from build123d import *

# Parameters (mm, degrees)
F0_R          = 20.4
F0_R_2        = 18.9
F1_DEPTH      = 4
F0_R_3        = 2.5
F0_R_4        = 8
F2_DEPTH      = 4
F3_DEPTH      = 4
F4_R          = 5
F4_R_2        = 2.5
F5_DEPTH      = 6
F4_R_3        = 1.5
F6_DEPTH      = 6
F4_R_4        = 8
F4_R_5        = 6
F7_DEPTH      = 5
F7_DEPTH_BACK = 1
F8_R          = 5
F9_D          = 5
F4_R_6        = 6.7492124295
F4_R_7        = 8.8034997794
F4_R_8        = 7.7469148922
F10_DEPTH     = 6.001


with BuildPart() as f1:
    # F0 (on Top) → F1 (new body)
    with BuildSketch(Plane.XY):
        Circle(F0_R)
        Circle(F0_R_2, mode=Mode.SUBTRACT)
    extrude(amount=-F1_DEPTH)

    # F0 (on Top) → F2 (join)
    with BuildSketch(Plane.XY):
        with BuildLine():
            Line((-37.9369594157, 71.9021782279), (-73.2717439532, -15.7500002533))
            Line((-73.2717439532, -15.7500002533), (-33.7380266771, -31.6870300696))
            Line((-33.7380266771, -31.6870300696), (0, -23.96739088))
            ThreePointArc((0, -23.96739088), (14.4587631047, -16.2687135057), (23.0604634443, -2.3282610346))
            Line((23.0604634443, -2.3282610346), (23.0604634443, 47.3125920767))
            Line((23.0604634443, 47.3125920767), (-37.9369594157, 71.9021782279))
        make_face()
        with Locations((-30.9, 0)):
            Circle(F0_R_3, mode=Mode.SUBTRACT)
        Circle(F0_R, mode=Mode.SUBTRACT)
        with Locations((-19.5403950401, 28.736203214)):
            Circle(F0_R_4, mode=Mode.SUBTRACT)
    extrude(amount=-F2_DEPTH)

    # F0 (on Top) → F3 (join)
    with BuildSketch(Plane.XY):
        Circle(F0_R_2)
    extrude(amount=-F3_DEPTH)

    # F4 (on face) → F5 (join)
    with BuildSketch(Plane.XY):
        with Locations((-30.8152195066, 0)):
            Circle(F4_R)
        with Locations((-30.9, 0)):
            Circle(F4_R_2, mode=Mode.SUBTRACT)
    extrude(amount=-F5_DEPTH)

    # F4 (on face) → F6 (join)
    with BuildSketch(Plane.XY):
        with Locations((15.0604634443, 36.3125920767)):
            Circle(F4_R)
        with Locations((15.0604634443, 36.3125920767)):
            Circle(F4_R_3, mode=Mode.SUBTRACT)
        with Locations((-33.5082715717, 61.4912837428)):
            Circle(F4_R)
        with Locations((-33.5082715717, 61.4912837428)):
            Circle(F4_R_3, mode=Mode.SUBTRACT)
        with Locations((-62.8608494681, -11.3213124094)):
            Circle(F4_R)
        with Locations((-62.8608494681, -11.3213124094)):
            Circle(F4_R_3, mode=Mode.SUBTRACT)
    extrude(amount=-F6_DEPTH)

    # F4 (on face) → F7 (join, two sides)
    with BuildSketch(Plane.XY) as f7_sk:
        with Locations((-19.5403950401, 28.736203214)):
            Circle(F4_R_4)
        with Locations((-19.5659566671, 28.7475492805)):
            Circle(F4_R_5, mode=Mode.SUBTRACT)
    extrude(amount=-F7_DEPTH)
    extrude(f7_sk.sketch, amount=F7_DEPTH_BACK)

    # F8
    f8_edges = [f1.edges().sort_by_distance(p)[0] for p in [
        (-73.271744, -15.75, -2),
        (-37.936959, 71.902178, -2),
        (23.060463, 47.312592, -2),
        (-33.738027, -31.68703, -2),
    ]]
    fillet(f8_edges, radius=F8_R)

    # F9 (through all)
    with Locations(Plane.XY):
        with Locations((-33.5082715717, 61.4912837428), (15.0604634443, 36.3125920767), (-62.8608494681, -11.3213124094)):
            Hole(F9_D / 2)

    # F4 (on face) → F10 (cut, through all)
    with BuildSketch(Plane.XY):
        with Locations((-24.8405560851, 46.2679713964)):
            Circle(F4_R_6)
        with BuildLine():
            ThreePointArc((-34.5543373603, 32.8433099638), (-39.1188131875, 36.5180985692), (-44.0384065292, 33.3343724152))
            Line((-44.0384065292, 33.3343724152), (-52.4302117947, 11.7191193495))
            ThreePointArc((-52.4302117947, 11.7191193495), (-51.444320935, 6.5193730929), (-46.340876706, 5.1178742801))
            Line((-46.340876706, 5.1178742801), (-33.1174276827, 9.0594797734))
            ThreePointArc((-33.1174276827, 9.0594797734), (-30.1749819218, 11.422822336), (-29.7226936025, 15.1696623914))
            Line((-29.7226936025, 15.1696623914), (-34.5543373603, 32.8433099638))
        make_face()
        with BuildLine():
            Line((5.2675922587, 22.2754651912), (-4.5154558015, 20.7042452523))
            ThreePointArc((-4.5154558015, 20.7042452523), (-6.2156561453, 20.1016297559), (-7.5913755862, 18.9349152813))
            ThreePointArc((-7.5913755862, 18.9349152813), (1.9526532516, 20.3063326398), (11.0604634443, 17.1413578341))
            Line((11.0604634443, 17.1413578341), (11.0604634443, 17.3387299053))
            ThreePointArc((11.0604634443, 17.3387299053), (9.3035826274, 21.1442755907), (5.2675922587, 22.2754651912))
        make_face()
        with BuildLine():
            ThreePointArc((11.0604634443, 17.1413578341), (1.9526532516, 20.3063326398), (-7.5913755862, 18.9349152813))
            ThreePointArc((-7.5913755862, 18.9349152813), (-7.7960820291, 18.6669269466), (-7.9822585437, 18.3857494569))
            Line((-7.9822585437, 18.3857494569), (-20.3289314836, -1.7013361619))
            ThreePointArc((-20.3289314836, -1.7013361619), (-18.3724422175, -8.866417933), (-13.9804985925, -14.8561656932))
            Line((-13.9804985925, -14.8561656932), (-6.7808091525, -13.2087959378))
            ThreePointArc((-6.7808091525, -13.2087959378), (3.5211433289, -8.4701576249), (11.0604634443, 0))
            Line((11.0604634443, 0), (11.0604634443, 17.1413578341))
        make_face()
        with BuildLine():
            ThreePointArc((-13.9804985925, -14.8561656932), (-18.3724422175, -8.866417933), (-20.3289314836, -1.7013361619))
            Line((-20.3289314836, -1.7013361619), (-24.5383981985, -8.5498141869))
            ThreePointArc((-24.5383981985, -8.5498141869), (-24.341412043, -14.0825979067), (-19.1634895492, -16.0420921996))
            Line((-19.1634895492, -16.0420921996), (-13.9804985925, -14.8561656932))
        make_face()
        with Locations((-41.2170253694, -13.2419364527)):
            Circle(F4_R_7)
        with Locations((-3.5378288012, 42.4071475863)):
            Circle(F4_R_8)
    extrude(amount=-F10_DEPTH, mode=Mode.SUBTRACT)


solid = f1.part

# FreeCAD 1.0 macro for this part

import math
import FreeCAD as App
import Part
import Sketcher
from FreeCAD import Vector
Q = App.Units.Quantity


def edges_at(feature, points):
    """Names of the edges that pass closest to the given points."""
    edges = feature.Shape.Edges
    near = lambda p: min(range(len(edges)), key=lambda i: edges[i].distToShape(Part.Vertex(*p))[0])
    return sorted({f"Edge{near(p) + 1}" for p in points})

doc = App.newDocument("Part")
body = doc.addObject("PartDesign::Body", "Body")

sketch1 = doc.addObject("Sketcher::SketchObject", "Sketch")
body.addObject(sketch1)
sketch1.AttachmentSupport = (doc.XY_Plane, [""])
sketch1.MapMode = "FlatFace"
sketch1.addGeometry([
    Part.Circle(Vector(0, 0, 0), Vector(0, 0, 1), 20.4),
    Part.Circle(Vector(0, 0, 0), Vector(0, 0, 1), 18.9),
], False)
sketch1.addConstraint([
    Sketcher.Constraint("Coincident", 0, 3, -1, 1),
    Sketcher.Constraint("Coincident", 1, 3, -1, 1),
    Sketcher.Constraint("Diameter", 0, Q("40.8 mm")),
    Sketcher.Constraint("Diameter", 1, Q("37.8 mm")),
])
pad1 = doc.addObject("PartDesign::Pad", "Pad")
body.addObject(pad1)
pad1.Profile = sketch1
pad1.Length = 4
pad1.Reversed = True

sketch2 = doc.addObject("Sketcher::SketchObject", "Sketch001")
body.addObject(sketch2)
sketch2.AttachmentSupport = (doc.XY_Plane, [""])
sketch2.MapMode = "FlatFace"
sketch2.addGeometry([
    Part.LineSegment(Vector(-37.936959, 71.902178, 0), Vector(-73.271744, -15.75, 0)),
    Part.LineSegment(Vector(-73.271744, -15.75, 0), Vector(-33.738027, -31.68703, 0)),
    Part.LineSegment(Vector(-33.738027, -31.68703, 0), Vector(0, -23.967391, 0)),
    Part.ArcOfCircle(Part.Circle(Vector(-6.992139, 6.591159, 0), Vector(0, 0, 1), 31.348285), math.radians(-77.111942), math.radians(-16.530551)),
    Part.LineSegment(Vector(23.060463, -2.328261, 0), Vector(23.060463, 47.312592, 0)),
    Part.LineSegment(Vector(23.060463, 47.312592, 0), Vector(-37.936959, 71.902178, 0)),
    Part.Circle(Vector(-30.9, 0, 0), Vector(0, 0, 1), 2.5),
    Part.Circle(Vector(0, 0, 0), Vector(0, 0, 1), 20.4),
    Part.Circle(Vector(-19.540395, 28.736203, 0), Vector(0, 0, 1), 8),
], False)
sketch2.addConstraint([
    Sketcher.Constraint("Coincident", 0, 2, 1, 1),
    Sketcher.Constraint("Coincident", 1, 2, 2, 1),
    Sketcher.Constraint("Tangent", 2, 2, 3, 1),
    Sketcher.Constraint("Coincident", 3, 2, 4, 1),
    Sketcher.Constraint("Coincident", 4, 2, 5, 1),
    Sketcher.Constraint("Coincident", 5, 2, 0, 1),
    Sketcher.Constraint("Vertical", 4),
    Sketcher.Constraint("Coincident", 7, 3, -1, 1),
    Sketcher.Constraint("PointOnObject", 6, 3, -1),
    Sketcher.Constraint("PointOnObject", 2, 2, -2),
    Sketcher.Constraint("Perpendicular", 0, 1),
    Sketcher.Constraint("Parallel", 1, 5),
    Sketcher.Constraint("Diameter", 6, Q("5 mm")),
    Sketcher.Constraint("Diameter", 8, Q("16 mm")),
    Sketcher.Constraint("Diameter", 7, Q("40.8 mm")),
    Sketcher.Constraint("DistanceX", 6, 3, -1, 1, Q("30.9 mm")),
    Sketcher.Constraint("DistanceY", 0, 2, -1, 1, Q("15.75 mm")),
    Sketcher.Constraint("Radius", 3, Q("31.348285 mm")),
    Sketcher.Constraint("Distance", 2, Q("34.60993 mm")),
    Sketcher.Constraint("DistanceY", 4, 1, 4, 2, Q("49.640853 mm")),
    Sketcher.Constraint("DistanceX", 3, 3, -1, 1, Q("6.992139 mm")),
    Sketcher.Constraint("DistanceY", -1, 1, 3, 3, Q("6.591159 mm")),
    Sketcher.Constraint("DistanceY", 3, 2, -1, 1, Q("2.328261 mm")),
    Sketcher.Constraint("DistanceX", 5, 2, -1, 1, Q("37.936959 mm")),
    Sketcher.Constraint("DistanceX", 0, 2, 8, 3, Q("53.731349 mm")),
    Sketcher.Constraint("DistanceY", 8, 3, 4, 2, Q("18.576389 mm")),
])
pad2 = doc.addObject("PartDesign::Pad", "Pad001")
body.addObject(pad2)
pad2.Profile = sketch2
pad2.Length = 4
pad2.Reversed = True

sketch3 = doc.addObject("Sketcher::SketchObject", "Sketch002")
body.addObject(sketch3)
sketch3.AttachmentSupport = (doc.XY_Plane, [""])
sketch3.MapMode = "FlatFace"
sketch3.addGeometry(Part.Circle(Vector(0, 0, 0), Vector(0, 0, 1), 18.9), False)
sketch3.addConstraint([
    Sketcher.Constraint("Coincident", 0, 3, -1, 1),
    Sketcher.Constraint("Diameter", 0, Q("37.8 mm")),
])
pad3 = doc.addObject("PartDesign::Pad", "Pad002")
body.addObject(pad3)
pad3.Profile = sketch3
pad3.Length = 4
pad3.Reversed = True

sketch4 = doc.addObject("Sketcher::SketchObject", "Sketch003")
body.addObject(sketch4)
sketch4.AttachmentSupport = (doc.XY_Plane, [""])
sketch4.MapMode = "FlatFace"
sketch4.addGeometry([
    Part.Circle(Vector(-30.81522, 0, 0), Vector(0, 0, 1), 5),
    Part.Circle(Vector(-30.9, 0, 0), Vector(0, 0, 1), 2.5),
], False)
sketch4.addConstraint([
    Sketcher.Constraint("PointOnObject", 0, 3, -1),
    Sketcher.Constraint("PointOnObject", 1, 3, -1),
    Sketcher.Constraint("Diameter", 0, Q("10 mm")),
    Sketcher.Constraint("Diameter", 1, Q("5 mm")),
    Sketcher.Constraint("DistanceX", 1, 3, -1, 1, Q("30.9 mm")),
    Sketcher.Constraint("DistanceX", 0, 3, -1, 1, Q("30.81522 mm")),
])
pad4 = doc.addObject("PartDesign::Pad", "Pad003")
body.addObject(pad4)
pad4.Profile = sketch4
pad4.Length = 6
pad4.Reversed = True

sketch5 = doc.addObject("Sketcher::SketchObject", "Sketch004")
body.addObject(sketch5)
sketch5.AttachmentSupport = (doc.XY_Plane, [""])
sketch5.MapMode = "FlatFace"
sketch5.addGeometry([
    Part.Circle(Vector(15.060463, 36.312592, 0), Vector(0, 0, 1), 5),
    Part.Circle(Vector(15.060463, 36.312592, 0), Vector(0, 0, 1), 1.5),
    Part.Circle(Vector(-33.508272, 61.491284, 0), Vector(0, 0, 1), 5),
    Part.Circle(Vector(-33.508272, 61.491284, 0), Vector(0, 0, 1), 1.5),
    Part.Circle(Vector(-62.860849, -11.321312, 0), Vector(0, 0, 1), 5),
    Part.Circle(Vector(-62.860849, -11.321312, 0), Vector(0, 0, 1), 1.5),
], False)
sketch5.addConstraint([
    Sketcher.Constraint("Coincident", 1, 3, 0, 3),
    Sketcher.Constraint("Coincident", 3, 3, 2, 3),
    Sketcher.Constraint("Coincident", 5, 3, 4, 3),
    Sketcher.Constraint("Equal", 0, 2),
    Sketcher.Constraint("Equal", 1, 3),
    Sketcher.Constraint("Equal", 2, 4),
    Sketcher.Constraint("Equal", 3, 5),
    Sketcher.Constraint("Diameter", 0, Q("10 mm")),
    Sketcher.Constraint("Diameter", 1, Q("3 mm")),
    Sketcher.Constraint("DistanceX", 2, 3, -1, 1, Q("33.508272 mm")),
    Sketcher.Constraint("DistanceX", 4, 3, -1, 1, Q("62.860849 mm")),
    Sketcher.Constraint("DistanceY", 0, 3, 2, 3, Q("25.178692 mm")),
    Sketcher.Constraint("DistanceX", -1, 1, 0, 3, Q("15.060463 mm")),
    Sketcher.Constraint("DistanceY", -1, 1, 0, 3, Q("36.312592 mm")),
    Sketcher.Constraint("DistanceY", 4, 3, -1, 1, Q("11.321312 mm")),
])
pad5 = doc.addObject("PartDesign::Pad", "Pad004")
body.addObject(pad5)
pad5.Profile = sketch5
pad5.Length = 6
pad5.Reversed = True

sketch6 = doc.addObject("Sketcher::SketchObject", "Sketch005")
body.addObject(sketch6)
sketch6.AttachmentSupport = (doc.XY_Plane, [""])
sketch6.MapMode = "FlatFace"
sketch6.addGeometry([
    Part.Circle(Vector(-19.540395, 28.736203, 0), Vector(0, 0, 1), 8),
    Part.Circle(Vector(-19.565957, 28.747549, 0), Vector(0, 0, 1), 6),
], False)
sketch6.addConstraint([
    Sketcher.Constraint("Diameter", 0, Q("16 mm")),
    Sketcher.Constraint("Diameter", 1, Q("12 mm")),
    Sketcher.Constraint("DistanceY", -1, 1, 1, 3, Q("28.747549 mm")),
    Sketcher.Constraint("DistanceX", 1, 3, 0, 3, Q("0.025562 mm")),
    Sketcher.Constraint("DistanceX", 0, 3, -1, 1, Q("19.540395 mm")),
    Sketcher.Constraint("DistanceY", -1, 1, 0, 3, Q("28.736203 mm")),
])
pad6 = doc.addObject("PartDesign::Pad", "Pad005")
body.addObject(pad6)
pad6.Profile = sketch6
pad6.Type = "TwoLengths"
pad6.Length = 5
pad6.Length2 = 1
pad6.Reversed = True
doc.recompute()

fillet = doc.addObject("PartDesign::Fillet", "Fillet")
body.addObject(fillet)
fillet.Base = (pad6, edges_at(pad6, [
    (-73.272, -15.75, -2),
    (-37.937, 71.902, -2),
    (23.06, 47.313, -2),
    (-33.738, -31.687, -2),
]))
fillet.Radius = 5

sketch7 = doc.addObject("Sketcher::SketchObject", "Sketch006")
body.addObject(sketch7)
sketch7.AttachmentSupport = (doc.XY_Plane, [""])
sketch7.MapMode = "FlatFace"
sketch7.addGeometry([
    Part.Circle(Vector(-33.508272, 61.491284, 0), Vector(0, 0, 1), 2.5),
    Part.Circle(Vector(15.060463, 36.312592, 0), Vector(0, 0, 1), 2.5),
    Part.Circle(Vector(-62.860849, -11.321312, 0), Vector(0, 0, 1), 2.5),
], False)
sketch7.addConstraint([
    Sketcher.Constraint("Equal", 0, 1),
    Sketcher.Constraint("Equal", 1, 2),
    Sketcher.Constraint("Diameter", 0, Q("5 mm")),
    Sketcher.Constraint("DistanceX", 0, 3, -1, 1, Q("33.508272 mm")),
    Sketcher.Constraint("DistanceX", 2, 3, -1, 1, Q("62.860849 mm")),
    Sketcher.Constraint("DistanceY", 1, 3, 0, 3, Q("25.178692 mm")),
    Sketcher.Constraint("DistanceY", -1, 1, 0, 3, Q("61.491284 mm")),
    Sketcher.Constraint("DistanceX", -1, 1, 1, 3, Q("15.060463 mm")),
    Sketcher.Constraint("DistanceY", 2, 3, -1, 1, Q("11.321312 mm")),
])
doc.recompute()
hole = doc.addObject("PartDesign::Hole", "Hole")
body.addObject(hole)
hole.Profile = sketch7
hole.ThreadType = "None"
hole.Diameter = 5
hole.DepthType = "ThroughAll"

sketch8 = doc.addObject("Sketcher::SketchObject", "Sketch007")
body.addObject(sketch8)
sketch8.AttachmentSupport = (doc.XY_Plane, [""])
sketch8.MapMode = "FlatFace"
sketch8.addGeometry([
    Part.Circle(Vector(-24.840556, 46.267971, 0), Vector(0, 0, 1), 6.749212),
    Part.ArcOfCircle(Part.Circle(Vector(-39.377355, 31.524787, 0), Vector(0, 0, 1), 5), math.radians(15.289989), math.radians(158.782028)),
    Part.LineSegment(Vector(-44.038407, 33.334372, 0), Vector(-52.430212, 11.719119, 0)),
    Part.ArcOfCircle(Part.Circle(Vector(-47.76916, 9.909534, 0), Vector(0, 0, 1), 5), math.radians(158.782028), math.radians(286.598106)),
    Part.LineSegment(Vector(-46.340877, 5.117874, 0), Vector(-33.117428, 9.05948, 0)),
    Part.ArcOfCircle(Part.Circle(Vector(-34.545711, 13.85114, 0), Vector(0, 0, 1), 5), math.radians(-73.401894), math.radians(15.289989)),
    Part.LineSegment(Vector(-29.722694, 15.169662, 0), Vector(-34.554337, 32.84331, 0)),
    Part.LineSegment(Vector(5.267592, 22.275465, 0), Vector(-4.515456, 20.704245, 0)),
    Part.ArcOfCircle(Part.Circle(Vector(-3.722585, 15.76751, 0), Vector(0, 0, 1), 5), math.radians(99.12415), math.radians(140.692581)),
    Part.ArcOfCircle(Part.Circle(Vector(-3.722585, 15.76751, 0), Vector(0, 0, 1), 5), math.radians(140.692581), math.radians(148.422735)),
    Part.LineSegment(Vector(-7.982259, 18.385749, 0), Vector(-20.328931, -1.701336, 0)),
    Part.LineSegment(Vector(-20.328931, -1.701336, 0), Vector(-24.538398, -8.549814, 0)),
    Part.ArcOfCircle(Part.Circle(Vector(-20.278724, -11.168054, 0), Vector(0, 0, 1), 5), math.radians(148.422735), math.radians(282.888058)),
    Part.LineSegment(Vector(-19.16349, -16.042092, 0), Vector(-13.980499, -14.856166, 0)),
    Part.LineSegment(Vector(-13.980499, -14.856166, 0), Vector(-6.780809, -13.208796, 0)),
    Part.ArcOfCircle(Part.Circle(Vector(-12.958106, 13.788554, 0), Vector(0, 0, 1), 27.695052), math.radians(-77.111942), math.radians(-29.859224)),
    Part.LineSegment(Vector(11.060463, 0, 0), Vector(11.060463, 17.33873, 0)),
    Part.ArcOfCircle(Part.Circle(Vector(6.060463, 17.33873, 0), Vector(0, 0, 1), 5), math.radians(0), math.radians(99.12415)),
    Part.Circle(Vector(-41.217025, -13.241936, 0), Vector(0, 0, 1), 8.8035),
    Part.Circle(Vector(-3.537829, 42.407148, 0), Vector(0, 0, 1), 7.746915),
], False)
sketch8.addConstraint([
    Sketcher.Constraint("Tangent", 1, 2, 2, 1),
    Sketcher.Constraint("Tangent", 2, 2, 3, 1),
    Sketcher.Constraint("Tangent", 3, 2, 4, 1),
    Sketcher.Constraint("Tangent", 4, 2, 5, 1),
    Sketcher.Constraint("Tangent", 5, 2, 6, 1),
    Sketcher.Constraint("Tangent", 6, 2, 1, 1),
    Sketcher.Constraint("Tangent", 7, 2, 8, 1),
    Sketcher.Constraint("Tangent", 8, 2, 9, 1),
    Sketcher.Constraint("Tangent", 9, 2, 10, 1),
    Sketcher.Constraint("Coincident", 10, 2, 11, 1),
    Sketcher.Constraint("Tangent", 11, 2, 12, 1),
    Sketcher.Constraint("Tangent", 12, 2, 13, 1),
    Sketcher.Constraint("Coincident", 13, 2, 14, 1),
    Sketcher.Constraint("Tangent", 14, 2, 15, 1),
    Sketcher.Constraint("Coincident", 15, 2, 16, 1),
    Sketcher.Constraint("Tangent", 16, 2, 17, 1),
    Sketcher.Constraint("Tangent", 17, 2, 7, 1),
    Sketcher.Constraint("Vertical", 16),
    Sketcher.Constraint("Equal", 1, 3),
    Sketcher.Constraint("Equal", 3, 5),
    Sketcher.Constraint("Equal", 5, 8),
    Sketcher.Constraint("Equal", 8, 9),
    Sketcher.Constraint("Equal", 9, 12),
    Sketcher.Constraint("Equal", 12, 17),
    Sketcher.Constraint("PointOnObject", 15, 2, -1),
    Sketcher.Constraint("Parallel", 10, 11),
    Sketcher.Constraint("Parallel", 13, 14),
    Sketcher.Constraint("Radius", 1, Q("5 mm")),
    Sketcher.Constraint("Diameter", 18, Q("17.607 mm")),
    Sketcher.Constraint("Angle", 6, Q("105.289989 deg")),
    Sketcher.Constraint("Diameter", 19, Q("15.49383 mm")),
    Sketcher.Constraint("Radius", 15, Q("27.695052 mm")),
    Sketcher.Constraint("Diameter", 0, Q("13.498425 mm")),
    Sketcher.Constraint("DistanceY", 10, 2, 5, 2, Q("16.870999 mm")),
    Sketcher.Constraint("Distance", 2, Q("23.187099 mm")),
    Sketcher.Constraint("Distance", 4, Q("13.798401 mm")),
    Sketcher.Constraint("DistanceY", 16, 1, 16, 2, Q("17.33873 mm")),
    Sketcher.Constraint("DistanceX", 11, 2, -1, 1, Q("24.538398 mm")),
    Sketcher.Constraint("DistanceX", 13, 2, -1, 1, Q("13.980499 mm")),
    Sketcher.Constraint("DistanceX", 1, 3, 0, 3, Q("14.536799 mm")),
    Sketcher.Constraint("DistanceX", 18, 3, 12, 3, Q("20.938301 mm")),
    Sketcher.Constraint("DistanceY", 1, 2, 0, 3, Q("12.933599 mm")),
    Sketcher.Constraint("DistanceX", 1, 2, 15, 3, Q("31.080301 mm")),
    Sketcher.Constraint("DistanceX", 2, 2, 5, 3, Q("17.884501 mm")),
    Sketcher.Constraint("Distance", 7, Q("9.908419 mm")),
    Sketcher.Constraint("DistanceY", -1, 1, 0, 3, Q("46.267971 mm")),
    Sketcher.Constraint("DistanceX", 3, 3, -1, 1, Q("47.76916 mm")),
    Sketcher.Constraint("DistanceY", -1, 1, 8, 3, Q("15.76751 mm")),
    Sketcher.Constraint("DistanceX", 19, 3, -1, 1, Q("3.537829 mm")),
    Sketcher.Constraint("DistanceX", 9, 2, -1, 1, Q("7.982259 mm")),
    Sketcher.Constraint("DistanceY", -1, 1, 9, 2, Q("18.385749 mm")),
    Sketcher.Constraint("DistanceY", 18, 3, 3, 3, Q("23.151471 mm")),
    Sketcher.Constraint("DistanceX", 8, 2, 7, 2, Q("3.07592 mm")),
    Sketcher.Constraint("DistanceY", -1, 1, 19, 3, Q("42.407148 mm")),
])
pocket1 = doc.addObject("PartDesign::Pocket", "Pocket")
body.addObject(pocket1)
pocket1.Profile = sketch8
pocket1.Type = "ThroughAll"

doc.recompute()
